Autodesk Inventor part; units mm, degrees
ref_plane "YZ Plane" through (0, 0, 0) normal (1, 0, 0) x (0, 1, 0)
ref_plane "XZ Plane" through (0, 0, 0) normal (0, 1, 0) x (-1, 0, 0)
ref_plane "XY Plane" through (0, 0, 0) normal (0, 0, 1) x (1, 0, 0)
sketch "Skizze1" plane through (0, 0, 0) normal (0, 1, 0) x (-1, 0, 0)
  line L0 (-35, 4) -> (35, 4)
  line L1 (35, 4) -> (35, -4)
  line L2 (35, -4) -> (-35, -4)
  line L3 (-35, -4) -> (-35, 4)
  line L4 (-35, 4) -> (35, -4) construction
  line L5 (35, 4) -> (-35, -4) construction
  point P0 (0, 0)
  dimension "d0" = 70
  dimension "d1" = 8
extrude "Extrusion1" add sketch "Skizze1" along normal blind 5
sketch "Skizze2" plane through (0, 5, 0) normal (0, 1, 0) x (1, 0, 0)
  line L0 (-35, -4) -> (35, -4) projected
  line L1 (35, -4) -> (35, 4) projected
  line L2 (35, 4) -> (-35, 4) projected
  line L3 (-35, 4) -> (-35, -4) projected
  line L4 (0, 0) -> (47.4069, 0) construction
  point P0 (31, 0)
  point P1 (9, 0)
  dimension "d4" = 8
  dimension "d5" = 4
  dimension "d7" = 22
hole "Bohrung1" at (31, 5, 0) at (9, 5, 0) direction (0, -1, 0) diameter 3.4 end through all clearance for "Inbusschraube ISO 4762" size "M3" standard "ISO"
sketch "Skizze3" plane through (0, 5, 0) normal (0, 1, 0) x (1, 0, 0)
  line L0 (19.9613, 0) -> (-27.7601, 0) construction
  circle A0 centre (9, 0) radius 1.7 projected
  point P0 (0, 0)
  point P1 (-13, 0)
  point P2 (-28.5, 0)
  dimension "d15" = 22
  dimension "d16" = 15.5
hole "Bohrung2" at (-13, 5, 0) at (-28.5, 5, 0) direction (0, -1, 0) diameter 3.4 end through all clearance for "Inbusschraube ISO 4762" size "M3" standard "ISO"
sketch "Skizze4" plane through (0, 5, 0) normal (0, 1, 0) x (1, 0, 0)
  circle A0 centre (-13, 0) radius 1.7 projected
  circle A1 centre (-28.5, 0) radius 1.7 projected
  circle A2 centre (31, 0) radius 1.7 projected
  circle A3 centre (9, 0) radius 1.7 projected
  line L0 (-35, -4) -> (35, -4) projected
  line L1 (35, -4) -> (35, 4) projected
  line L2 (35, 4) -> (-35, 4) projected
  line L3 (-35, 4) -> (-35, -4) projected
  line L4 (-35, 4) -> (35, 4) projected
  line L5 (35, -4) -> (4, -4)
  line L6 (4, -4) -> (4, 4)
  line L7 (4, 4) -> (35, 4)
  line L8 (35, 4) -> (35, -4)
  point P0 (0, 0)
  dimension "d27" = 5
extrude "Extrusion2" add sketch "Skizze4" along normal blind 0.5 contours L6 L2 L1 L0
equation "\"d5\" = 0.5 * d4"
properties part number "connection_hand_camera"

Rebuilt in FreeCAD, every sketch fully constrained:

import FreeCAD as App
import Part
import Sketcher

V = App.Vector

doc = App.newDocument("Part")
body = doc.addObject("PartDesign::Body", "Body")

sketch1 = doc.addObject("Sketcher::SketchObject", "Sketch")
body.addObject(sketch1)
sketch1.AttachmentSupport = (doc.XZ_Plane, [""])
sketch1.MapMode = "FlatFace"
sketch1.addGeometry([
    Part.LineSegment(V(-35, 4, 0), V(35, 4, 0)),
    Part.LineSegment(V(35, 4, 0), V(35, -4, 0)),
    Part.LineSegment(V(35, -4, 0), V(-35, -4, 0)),
    Part.LineSegment(V(-35, -4, 0), V(-35, 4, 0)),
], False)
sketch1.addConstraint([
    Sketcher.Constraint("Coincident", 0, 2, 1, 1),
    Sketcher.Constraint("Coincident", 1, 2, 2, 1),
    Sketcher.Constraint("Coincident", 2, 2, 3, 1),
    Sketcher.Constraint("Coincident", 3, 2, 0, 1),
    Sketcher.Constraint("Horizontal", 0),
    Sketcher.Constraint("Vertical", 1),
    Sketcher.Constraint("Horizontal", 2),
    Sketcher.Constraint("Vertical", 3),
    Sketcher.Constraint("Symmetric", 0, 2, 2, 2, -1, 1),
    Sketcher.Constraint("DistanceX", 0, 1, 0, 2, 70.0),
    Sketcher.Constraint("DistanceY", 1, 2, 1, 1, 8.0),
])
pad1 = doc.addObject("PartDesign::Pad", "Pad")
body.addObject(pad1)
pad1.Profile = sketch1
pad1.Length = 5
pad1.Reversed = True

sketch2 = doc.addObject("Sketcher::SketchObject", "Sketch001")
body.addObject(sketch2)
sketch2.AttachmentSupport = (doc.XZ_Plane, [""])
sketch2.MapMode = "FlatFace"
sketch2.AttachmentOffset = App.Placement(V(0, 0, -5), App.Rotation())
sketch2.addGeometry([
    Part.Circle(V(31, 0, 0), V(0, 0, 1), 1.7),
    Part.Circle(V(9, 0, 0), V(0, 0, 1), 1.7),
], False)
sketch2.addConstraint([
    Sketcher.Constraint("Equal", 0, 1),
    Sketcher.Constraint("PointOnObject", 0, 3, -1),
    Sketcher.Constraint("PointOnObject", 1, 3, -1),
    Sketcher.Constraint("Diameter", 0, 3.4),
    Sketcher.Constraint("DistanceX", -1, 1, 0, 3, 31.0),
    Sketcher.Constraint("DistanceX", -1, 1, 1, 3, 9.0),
])
doc.recompute()
hole = doc.addObject("PartDesign::Hole", "Hole")
body.addObject(hole)
hole.Profile = sketch2
hole.ThreadType = "None"
hole.Diameter = 3.4
hole.DepthType = "ThroughAll"
hole.Reversed = True

sketch3 = doc.addObject("Sketcher::SketchObject", "Sketch002")
body.addObject(sketch3)
sketch3.AttachmentSupport = (doc.XZ_Plane, [""])
sketch3.MapMode = "FlatFace"
sketch3.AttachmentOffset = App.Placement(V(0, 0, -5), App.Rotation())
sketch3.addGeometry([
    Part.Circle(V(-13, 0, 0), V(0, 0, 1), 1.7),
    Part.Circle(V(-28.5, 0, 0), V(0, 0, 1), 1.7),
], False)
sketch3.addConstraint([
    Sketcher.Constraint("Equal", 0, 1),
    Sketcher.Constraint("PointOnObject", 0, 3, -1),
    Sketcher.Constraint("PointOnObject", 1, 3, -1),
    Sketcher.Constraint("Diameter", 0, 3.4),
    Sketcher.Constraint("DistanceX", 0, 3, -1, 1, 13.0),
    Sketcher.Constraint("DistanceX", 1, 3, -1, 1, 28.5),
])
doc.recompute()
hole2 = doc.addObject("PartDesign::Hole", "Hole001")
body.addObject(hole2)
hole2.Profile = sketch3
hole2.ThreadType = "None"
hole2.Diameter = 3.4
hole2.DepthType = "ThroughAll"
hole2.Reversed = True

sketch4 = doc.addObject("Sketcher::SketchObject", "Sketch003")
body.addObject(sketch4)
sketch4.AttachmentSupport = (doc.XZ_Plane, [""])
sketch4.MapMode = "FlatFace"
sketch4.AttachmentOffset = App.Placement(V(0, 0, -5), App.Rotation())
sketch4.addGeometry([
    Part.LineSegment(V(4, -4, 0), V(4, 4, 0)),
    Part.LineSegment(V(4, 4, 0), V(35, 4, 0)),
    Part.LineSegment(V(35, 4, 0), V(35, -4, 0)),
    Part.LineSegment(V(35, -4, 0), V(4, -4, 0)),
    Part.Circle(V(9, 0, 0), V(0, 0, 1), 1.7),
    Part.Circle(V(31, 0, 0), V(0, 0, 1), 1.7),
], False)
sketch4.addConstraint([
    Sketcher.Constraint("Coincident", 0, 2, 1, 1),
    Sketcher.Constraint("Coincident", 1, 2, 2, 1),
    Sketcher.Constraint("Coincident", 2, 2, 3, 1),
    Sketcher.Constraint("Coincident", 3, 2, 0, 1),
    Sketcher.Constraint("Vertical", 0),
    Sketcher.Constraint("Horizontal", 1),
    Sketcher.Constraint("Vertical", 2),
    Sketcher.Constraint("Horizontal", 3),
    Sketcher.Constraint("Equal", 4, 5),
    Sketcher.Constraint("PointOnObject", 4, 3, -1),
    Sketcher.Constraint("PointOnObject", 5, 3, -1),
    Sketcher.Constraint("DistanceX", 0, 2, 4, 3, 5.0),
    Sketcher.Constraint("Diameter", 4, 3.4),
    Sketcher.Constraint("DistanceX", 1, 1, 1, 2, 31.0),
    Sketcher.Constraint("DistanceY", 0, 1, 0, 2, 8.0),
    Sketcher.Constraint("DistanceX", -1, 1, 4, 3, 9.0),
    Sketcher.Constraint("DistanceX", -1, 1, 5, 3, 31.0),
    Sketcher.Constraint("DistanceY", -1, 1, 0, 2, 4.0),
])
pad2 = doc.addObject("PartDesign::Pad", "Pad001")
body.addObject(pad2)
pad2.Profile = sketch4
pad2.Length = 0.5
pad2.Reversed = True

doc.recompute()
